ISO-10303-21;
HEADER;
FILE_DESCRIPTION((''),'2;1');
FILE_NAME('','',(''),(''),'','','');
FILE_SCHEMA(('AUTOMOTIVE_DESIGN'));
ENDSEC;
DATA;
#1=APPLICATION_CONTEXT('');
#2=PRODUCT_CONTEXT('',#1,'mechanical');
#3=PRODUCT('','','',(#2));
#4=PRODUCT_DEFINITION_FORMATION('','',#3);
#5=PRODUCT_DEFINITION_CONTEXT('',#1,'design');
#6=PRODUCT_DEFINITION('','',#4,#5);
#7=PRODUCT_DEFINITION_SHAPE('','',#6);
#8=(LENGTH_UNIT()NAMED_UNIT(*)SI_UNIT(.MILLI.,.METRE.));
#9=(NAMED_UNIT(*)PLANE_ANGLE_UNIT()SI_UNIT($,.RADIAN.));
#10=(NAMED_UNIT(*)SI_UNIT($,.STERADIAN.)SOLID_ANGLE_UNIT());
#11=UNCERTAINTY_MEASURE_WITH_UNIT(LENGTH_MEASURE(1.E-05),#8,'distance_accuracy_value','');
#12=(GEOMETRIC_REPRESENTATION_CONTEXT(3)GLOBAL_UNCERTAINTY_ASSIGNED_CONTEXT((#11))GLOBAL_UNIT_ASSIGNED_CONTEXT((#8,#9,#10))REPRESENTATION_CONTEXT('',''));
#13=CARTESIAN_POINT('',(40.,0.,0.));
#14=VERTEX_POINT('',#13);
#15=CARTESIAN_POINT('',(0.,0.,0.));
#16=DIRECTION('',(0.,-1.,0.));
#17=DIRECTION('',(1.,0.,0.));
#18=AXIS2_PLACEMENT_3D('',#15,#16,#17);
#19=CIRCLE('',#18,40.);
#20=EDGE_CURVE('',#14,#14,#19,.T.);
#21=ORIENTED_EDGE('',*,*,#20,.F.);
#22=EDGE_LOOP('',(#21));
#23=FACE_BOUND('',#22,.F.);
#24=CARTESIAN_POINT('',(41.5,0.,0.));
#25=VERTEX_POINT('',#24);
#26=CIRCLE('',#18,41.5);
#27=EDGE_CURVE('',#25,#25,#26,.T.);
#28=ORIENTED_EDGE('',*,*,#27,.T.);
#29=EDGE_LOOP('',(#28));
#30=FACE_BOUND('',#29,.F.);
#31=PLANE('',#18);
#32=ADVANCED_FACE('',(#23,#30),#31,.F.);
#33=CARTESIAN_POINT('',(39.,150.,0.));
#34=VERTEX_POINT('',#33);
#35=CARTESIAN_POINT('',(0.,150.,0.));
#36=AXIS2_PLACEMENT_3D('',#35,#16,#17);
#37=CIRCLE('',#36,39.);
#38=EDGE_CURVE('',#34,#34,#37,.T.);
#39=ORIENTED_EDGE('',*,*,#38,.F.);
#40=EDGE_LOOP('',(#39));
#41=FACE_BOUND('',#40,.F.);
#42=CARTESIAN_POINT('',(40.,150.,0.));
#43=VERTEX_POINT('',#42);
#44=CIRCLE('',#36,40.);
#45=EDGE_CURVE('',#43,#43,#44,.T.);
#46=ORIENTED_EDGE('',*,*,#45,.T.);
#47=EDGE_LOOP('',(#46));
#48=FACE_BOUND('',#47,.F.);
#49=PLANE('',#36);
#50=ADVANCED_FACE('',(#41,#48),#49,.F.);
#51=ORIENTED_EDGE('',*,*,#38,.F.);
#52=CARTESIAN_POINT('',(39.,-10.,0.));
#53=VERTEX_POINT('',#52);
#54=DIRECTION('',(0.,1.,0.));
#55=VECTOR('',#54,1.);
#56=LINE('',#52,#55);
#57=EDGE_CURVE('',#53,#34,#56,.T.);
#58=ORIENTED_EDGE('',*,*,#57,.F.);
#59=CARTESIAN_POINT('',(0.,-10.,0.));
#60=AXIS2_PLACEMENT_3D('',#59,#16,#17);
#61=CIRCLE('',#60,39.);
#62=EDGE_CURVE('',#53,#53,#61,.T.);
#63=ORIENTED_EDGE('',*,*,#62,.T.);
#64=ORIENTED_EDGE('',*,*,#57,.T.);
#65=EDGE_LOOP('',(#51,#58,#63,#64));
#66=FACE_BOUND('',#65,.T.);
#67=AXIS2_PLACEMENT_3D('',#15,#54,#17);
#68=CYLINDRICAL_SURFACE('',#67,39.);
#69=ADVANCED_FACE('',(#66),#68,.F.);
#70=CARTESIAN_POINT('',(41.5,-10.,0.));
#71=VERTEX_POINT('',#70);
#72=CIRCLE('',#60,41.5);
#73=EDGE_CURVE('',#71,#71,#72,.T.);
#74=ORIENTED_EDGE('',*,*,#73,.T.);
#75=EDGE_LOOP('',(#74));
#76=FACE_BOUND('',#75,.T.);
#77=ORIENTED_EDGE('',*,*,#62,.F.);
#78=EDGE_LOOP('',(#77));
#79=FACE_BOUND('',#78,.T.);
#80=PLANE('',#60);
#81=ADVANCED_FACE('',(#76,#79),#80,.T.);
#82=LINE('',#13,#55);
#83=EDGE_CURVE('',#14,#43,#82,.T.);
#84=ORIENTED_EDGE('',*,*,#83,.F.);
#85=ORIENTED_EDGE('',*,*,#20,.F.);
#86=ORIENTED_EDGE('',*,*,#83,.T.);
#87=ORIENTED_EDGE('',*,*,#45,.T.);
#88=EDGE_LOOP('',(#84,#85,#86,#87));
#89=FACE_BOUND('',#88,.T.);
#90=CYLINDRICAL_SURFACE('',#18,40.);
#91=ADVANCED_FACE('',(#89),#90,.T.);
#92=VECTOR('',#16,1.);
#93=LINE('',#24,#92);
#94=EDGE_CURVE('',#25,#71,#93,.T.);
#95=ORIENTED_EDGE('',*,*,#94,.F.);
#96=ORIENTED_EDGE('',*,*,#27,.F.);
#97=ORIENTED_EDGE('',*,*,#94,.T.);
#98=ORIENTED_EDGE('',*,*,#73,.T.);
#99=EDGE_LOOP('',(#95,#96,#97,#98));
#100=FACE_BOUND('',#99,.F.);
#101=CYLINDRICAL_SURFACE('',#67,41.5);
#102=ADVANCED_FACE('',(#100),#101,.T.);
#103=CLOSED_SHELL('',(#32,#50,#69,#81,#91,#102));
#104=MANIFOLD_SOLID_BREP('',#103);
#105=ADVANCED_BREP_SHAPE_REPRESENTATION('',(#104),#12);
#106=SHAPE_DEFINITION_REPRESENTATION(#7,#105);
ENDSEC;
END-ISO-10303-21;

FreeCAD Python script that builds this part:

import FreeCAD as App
import Part
import Sketcher
from FreeCAD import Vector
Q = App.Units.Quantity

doc = App.newDocument("Part")
body = doc.addObject("PartDesign::Body", "Body")

# Sketch on XZ plane
sketch1 = body.newObject("Sketcher::SketchObject", "Sketch")
sketch1.AttachmentSupport = (doc.getObject("XZ_Plane"), [""])
sketch1.MapMode = "FlatFace"
sketch1.addGeometry([
    Part.Circle(Vector(0, 0, 0), Vector(0, 0, 1), 40),
    Part.Circle(Vector(0, 0, 0), Vector(0, 0, 1), 39),
], False)
sketch1.addConstraint([
    Sketcher.Constraint("Coincident", 0, 3, -1, 1),
    Sketcher.Constraint("Coincident", 1, 3, -1, 1),
    Sketcher.Constraint("Diameter", 0, Q("80 mm")),
    Sketcher.Constraint("Diameter", 1, Q("78 mm")),
])
pad1 = body.newObject("PartDesign::Pad", "Pad")
pad1.Profile = sketch1
pad1.Length = 150
pad1.Reversed = True

# Sketch on XZ plane
sketch2 = body.newObject("Sketcher::SketchObject", "Sketch001")
sketch2.AttachmentSupport = (doc.getObject("XZ_Plane"), [""])
sketch2.MapMode = "FlatFace"
sketch2.addGeometry([
    Part.Circle(Vector(0, 0, 0), Vector(0, 0, 1), 42),
    Part.Circle(Vector(0, 0, 0), Vector(0, 0, 1), 39),
], False)
sketch2.addConstraint([
    Sketcher.Constraint("Coincident", 0, 3, -1, 1),
    Sketcher.Constraint("Coincident", 1, 3, -1, 1),
    Sketcher.Constraint("Diameter", 0, Q("83 mm")),
    Sketcher.Constraint("Diameter", 1, Q("78 mm")),
])
pad2 = body.newObject("PartDesign::Pad", "Pad001")
pad2.Profile = sketch2
pad2.Length = 10

doc.recompute()
